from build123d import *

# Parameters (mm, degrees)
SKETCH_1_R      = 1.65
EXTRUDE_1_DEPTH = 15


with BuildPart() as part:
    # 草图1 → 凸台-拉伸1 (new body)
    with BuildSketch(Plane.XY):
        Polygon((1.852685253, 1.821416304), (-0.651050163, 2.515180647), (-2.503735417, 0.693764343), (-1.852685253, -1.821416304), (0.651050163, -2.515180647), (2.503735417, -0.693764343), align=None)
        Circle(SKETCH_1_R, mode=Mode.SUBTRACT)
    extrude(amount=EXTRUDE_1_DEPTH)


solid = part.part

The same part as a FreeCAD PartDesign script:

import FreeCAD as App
import Part
import Sketcher
from FreeCAD import Vector


def add_polygon(sketch, points):
    """Adds a closed chain of lines whose ends are joined by coincident constraints."""
    first, n = sketch.GeometryCount, len(points)
    for a, b in zip(points, points[1:] + points[:1]):
        sketch.addGeometry(Part.LineSegment(App.Vector(*a, 0), App.Vector(*b, 0)), False)
    for i in range(n):
        sketch.addConstraint(Sketcher.Constraint("Coincident", first + i, 2, first + (i + 1) % n, 1))

doc = App.newDocument("Part")
body = doc.addObject("PartDesign::Body", "Body")

# Sketch on XY plane
sketch1 = body.newObject("Sketcher::SketchObject", "Sketch")
sketch1.AttachmentSupport = (doc.getObject("XY_Plane"), [""])
sketch1.MapMode = "FlatFace"
add_polygon(sketch1, [(1.852685, 1.821416), (-0.65105, 2.515181), (-2.503735, 0.693764), (-1.852685, -1.821416), (0.65105, -2.515181), (2.503735, -0.693764)])  # lines 0-5
sketch1.addGeometry(Part.Circle(Vector(0, 0, 0), Vector(0, 0, 1), 1.65), False)  # 6
sketch1.addConstraint(Sketcher.Constraint("Coincident", 6, 3, -1, 1))
sketch1.addConstraint(Sketcher.Constraint("Symmetric", 0, 2, 3, 2, -1, 1))
sketch1.addConstraint(Sketcher.Constraint("Symmetric", 1, 2, 4, 2, -1, 1))
sketch1.addConstraint(Sketcher.Constraint("Symmetric", 2, 2, 5, 2, -1, 1))
sketch1.addConstraint(Sketcher.Constraint("Equal", 0, 1))
sketch1.addConstraint(Sketcher.Constraint("Equal", 1, 2))
sketch1.addConstraint(Sketcher.Constraint("Diameter", 6, 3.3))
sketch1.addConstraint(Sketcher.Constraint("DistanceX", 0, 2, 3, 2, 1.3021))
sketch1.addConstraint(Sketcher.Constraint("DistanceY", -1, 1, 0, 2, 2.515181))
sketch1.addConstraint(Sketcher.Constraint("DistanceX", 1, 2, 2, 2, 0.65105))
sketch1.addConstraint(Sketcher.Constraint("DistanceY", 2, 2, 1, 2, 2.515181))
pad1 = body.newObject("PartDesign::Pad", "Pad")
pad1.Profile = sketch1
pad1.Length = 15

doc.recompute()
